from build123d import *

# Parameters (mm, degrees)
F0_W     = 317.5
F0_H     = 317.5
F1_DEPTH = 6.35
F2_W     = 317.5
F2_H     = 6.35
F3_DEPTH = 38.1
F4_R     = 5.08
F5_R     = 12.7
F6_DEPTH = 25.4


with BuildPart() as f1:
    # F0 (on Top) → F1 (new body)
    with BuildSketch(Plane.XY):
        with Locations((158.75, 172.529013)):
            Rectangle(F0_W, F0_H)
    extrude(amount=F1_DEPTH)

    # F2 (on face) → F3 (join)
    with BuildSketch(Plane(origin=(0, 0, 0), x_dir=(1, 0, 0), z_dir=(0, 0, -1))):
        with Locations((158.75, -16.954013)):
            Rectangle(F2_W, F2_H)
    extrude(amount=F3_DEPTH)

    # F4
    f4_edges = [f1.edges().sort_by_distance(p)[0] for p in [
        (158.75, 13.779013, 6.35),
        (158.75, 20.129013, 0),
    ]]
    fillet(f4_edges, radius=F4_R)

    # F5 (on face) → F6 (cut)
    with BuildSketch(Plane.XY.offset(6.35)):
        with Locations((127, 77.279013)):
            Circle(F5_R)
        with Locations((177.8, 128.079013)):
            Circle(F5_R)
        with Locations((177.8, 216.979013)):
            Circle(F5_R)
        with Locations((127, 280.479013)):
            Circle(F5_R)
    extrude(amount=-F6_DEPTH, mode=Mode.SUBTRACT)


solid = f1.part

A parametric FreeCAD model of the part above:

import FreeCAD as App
import Part
import Sketcher
Q = App.Units.Quantity


def edges_at(feature, points):
    """Names of the edges that pass closest to the given points."""
    edges = feature.Shape.Edges
    near = lambda p: min(range(len(edges)), key=lambda i: edges[i].distToShape(Part.Vertex(*p))[0])
    return sorted({f"Edge{near(p) + 1}" for p in points})


def add_polygon(sketch, points):
    """Adds a closed chain of lines whose ends are joined by coincident constraints."""
    first, n = sketch.GeometryCount, len(points)
    for a, b in zip(points, points[1:] + points[:1]):
        sketch.addGeometry(Part.LineSegment(App.Vector(*a, 0), App.Vector(*b, 0)), False)
    for i in range(n):
        sketch.addConstraint(Sketcher.Constraint("Coincident", first + i, 2, first + (i + 1) % n, 1))

doc = App.newDocument("Part")
body = doc.addObject("PartDesign::Body", "Body")

# Sketch on XY plane
sketch1 = doc.addObject("Sketcher::SketchObject", "Sketch")
body.addObject(sketch1)
sketch1.AttachmentSupport = (doc.XY_Plane, [""])
sketch1.MapMode = "FlatFace"
add_polygon(sketch1, [(0, 331.279013), (0, 13.779013), (317.5, 13.779013), (317.5, 331.279013)])  # lines 0-3
sketch1.addConstraint([
    Sketcher.Constraint("Vertical", 0),
    Sketcher.Constraint("Horizontal", 1),
    Sketcher.Constraint("Vertical", 2),
    Sketcher.Constraint("Horizontal", 3),
    Sketcher.Constraint("PointOnObject", 0, 2, -2),
    Sketcher.Constraint("Equal", 3, 0),
    Sketcher.Constraint("DistanceX", 1, 1, 1, 2, Q("12.5 in")),
    Sketcher.Constraint("DistanceY", -1, 1, 0, 2, Q("13.779013 mm")),
])
pad1 = doc.addObject("PartDesign::Pad", "Pad")
body.addObject(pad1)
pad1.Profile = sketch1
pad1.Length = Q("0.25 in")

# Sketch on XY plane
sketch2 = doc.addObject("Sketcher::SketchObject", "Sketch001")
body.addObject(sketch2)
sketch2.AttachmentSupport = (doc.XY_Plane, [""])
sketch2.MapMode = "FlatFace"
add_polygon(sketch2, [(0, 13.779013), (0, 20.129013), (317.5, 20.129013), (317.5, 13.779013)])  # lines 0-3
sketch2.addConstraint([
    Sketcher.Constraint("Vertical", 0),
    Sketcher.Constraint("Horizontal", 1),
    Sketcher.Constraint("Vertical", 2),
    Sketcher.Constraint("Horizontal", 3),
    Sketcher.Constraint("PointOnObject", 0, 2, -2),
    Sketcher.Constraint("DistanceX", 1, 1, 1, 2, Q("12.5 in")),
    Sketcher.Constraint("DistanceY", 0, 1, 0, 2, Q("0.25 in")),
    Sketcher.Constraint("DistanceY", -1, 1, 0, 2, Q("20.129013 mm")),
])
pad2 = doc.addObject("PartDesign::Pad", "Pad001")
body.addObject(pad2)
pad2.Profile = sketch2
pad2.Length = Q("1.5 in")
pad2.Reversed = True
doc.recompute()

fillet = doc.addObject("PartDesign::Fillet", "Fillet")
body.addObject(fillet)
fillet.Base = (pad2, edges_at(pad2, [(158.75, 13.779, 6.35), (158.75, 20.129, 0)]))
fillet.Radius = Q("0.2 in")

# Sketch on XY plane
sketch3 = doc.addObject("Sketcher::SketchObject", "Sketch002")
body.addObject(sketch3)
sketch3.AttachmentSupport = (doc.XY_Plane, [""])
sketch3.MapMode = "FlatFace"
sketch3.AttachmentOffset = App.Placement(App.Vector(0, 0, 0.25 * 25.4), App.Rotation())
sketch3.addGeometry([
    Part.Circle(App.Vector(127, 77.279013, 0), App.Vector(0, 0, 1), 12.7),
    Part.Circle(App.Vector(177.8, 128.079013, 0), App.Vector(0, 0, 1), 12.7),
    Part.Circle(App.Vector(177.8, 216.979013, 0), App.Vector(0, 0, 1), 12.7),
    Part.Circle(App.Vector(127, 280.479013, 0), App.Vector(0, 0, 1), 12.7),
], False)
sketch3.addConstraint([
    Sketcher.Constraint("Equal", 0, 1),
    Sketcher.Constraint("Equal", 1, 2),
    Sketcher.Constraint("Equal", 2, 3),
    Sketcher.Constraint("Vertical", 1, 3, 2, 3),
    Sketcher.Constraint("Vertical", 0, 3, 3, 3),
    Sketcher.Constraint("Diameter", 0, Q("1 in")),
    Sketcher.Constraint("DistanceX", -1, 1, 0, 3, Q("5 in")),
    Sketcher.Constraint("DistanceX", -1, 1, 1, 3, Q("7 in")),
    Sketcher.Constraint("DistanceY", 0, 3, 1, 3, Q("2 in")),
    Sketcher.Constraint("DistanceY", 1, 3, 3, 3, Q("6 in")),
    Sketcher.Constraint("DistanceY", 1, 3, 2, 3, Q("3.5 in")),
    Sketcher.Constraint("DistanceY", -1, 1, 0, 3, Q("77.279013 mm")),
])
pocket1 = doc.addObject("PartDesign::Pocket", "Pocket")
body.addObject(pocket1)
pocket1.Profile = sketch3
pocket1.Length = Q("1 in")

doc.recompute()
